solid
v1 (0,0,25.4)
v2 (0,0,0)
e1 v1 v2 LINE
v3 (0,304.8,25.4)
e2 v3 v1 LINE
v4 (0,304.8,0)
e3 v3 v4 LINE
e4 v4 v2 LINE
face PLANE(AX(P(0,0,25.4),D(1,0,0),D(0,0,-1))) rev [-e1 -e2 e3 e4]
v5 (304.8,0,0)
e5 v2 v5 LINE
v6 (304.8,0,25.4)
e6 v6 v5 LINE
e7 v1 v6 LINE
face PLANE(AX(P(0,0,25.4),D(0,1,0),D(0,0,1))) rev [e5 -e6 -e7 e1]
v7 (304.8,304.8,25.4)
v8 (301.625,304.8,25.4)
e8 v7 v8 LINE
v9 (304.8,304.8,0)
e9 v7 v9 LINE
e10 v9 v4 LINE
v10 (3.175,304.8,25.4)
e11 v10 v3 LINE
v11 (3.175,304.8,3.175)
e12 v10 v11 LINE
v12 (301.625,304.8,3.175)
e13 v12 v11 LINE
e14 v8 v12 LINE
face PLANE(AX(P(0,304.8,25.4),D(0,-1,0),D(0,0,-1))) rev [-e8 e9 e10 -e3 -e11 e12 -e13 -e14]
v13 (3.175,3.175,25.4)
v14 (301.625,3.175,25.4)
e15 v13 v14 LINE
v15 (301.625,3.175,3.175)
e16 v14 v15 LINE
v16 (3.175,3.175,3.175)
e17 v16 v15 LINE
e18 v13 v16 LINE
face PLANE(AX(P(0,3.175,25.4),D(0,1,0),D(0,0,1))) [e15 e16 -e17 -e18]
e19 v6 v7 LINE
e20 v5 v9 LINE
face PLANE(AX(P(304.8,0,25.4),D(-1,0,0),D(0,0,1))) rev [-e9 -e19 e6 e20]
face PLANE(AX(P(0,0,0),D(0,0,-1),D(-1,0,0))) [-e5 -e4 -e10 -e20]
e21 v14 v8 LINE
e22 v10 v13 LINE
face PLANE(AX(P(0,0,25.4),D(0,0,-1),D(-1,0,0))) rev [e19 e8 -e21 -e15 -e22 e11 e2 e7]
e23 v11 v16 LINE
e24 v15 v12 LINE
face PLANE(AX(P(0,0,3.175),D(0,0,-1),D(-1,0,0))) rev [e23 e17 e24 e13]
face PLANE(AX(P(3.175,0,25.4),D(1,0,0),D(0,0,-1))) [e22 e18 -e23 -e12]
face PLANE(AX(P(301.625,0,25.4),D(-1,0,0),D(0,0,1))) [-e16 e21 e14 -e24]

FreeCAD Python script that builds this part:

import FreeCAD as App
import Part
import Sketcher

V = App.Vector
Q = App.Units.Quantity


def faces_at(feature, points):
    """Names of the faces that lie closest to the given points."""
    faces = feature.Shape.Faces
    near = lambda p: min(range(len(faces)), key=lambda i: faces[i].distToShape(Part.Vertex(*p))[0])
    return sorted({f"Face{near(p) + 1}" for p in points})


def add_polygon(sketch, points):
    """Adds a closed chain of lines whose ends are joined by coincident constraints."""
    first, n = sketch.GeometryCount, len(points)
    for a, b in zip(points, points[1:] + points[:1]):
        sketch.addGeometry(Part.LineSegment(App.Vector(*a, 0), App.Vector(*b, 0)), False)
    for i in range(n):
        sketch.addConstraint(Sketcher.Constraint("Coincident", first + i, 2, first + (i + 1) % n, 1))

doc = App.newDocument("Part")
params = doc.addObject("Spreadsheet::Sheet", "Params")
for row, (alias, value) in enumerate([
    ("sketch1_width", "12 in"),
    ("pad1_length", "1 in"),
    ("thickness_wall", "0.125 in"),
], start=1):
    params.set(f"A{row}", alias)
    params.set(f"B{row}", "=" + value)
    params.setAlias(f"B{row}", alias)

body = doc.addObject("PartDesign::Body", "Body")

sketch1 = body.newObject("Sketcher::SketchObject", "Sketch")
sketch1.AttachmentSupport = (doc.getObject("XY_Plane"), [""])
sketch1.MapMode = "FlatFace"
add_polygon(sketch1, [(0, 305), (0, 0), (305, 0), (305, 305)])
sketch1.addConstraint([
    Sketcher.Constraint("Vertical", 0),
    Sketcher.Constraint("Horizontal", 1),
    Sketcher.Constraint("Vertical", 2),
    Sketcher.Constraint("Horizontal", 3),
    Sketcher.Constraint("Coincident", 0, 2, -1, 1),
    Sketcher.Constraint("Equal", 3, 0),
    Sketcher.Constraint("DistanceX", 1, 1, 1, 2, Q("12 in")),
])
sketch1.setExpression("Constraints[10]", "Params.sketch1_width")
pad1 = body.newObject("PartDesign::Pad", "Pad")
pad1.Profile = sketch1
pad1.setExpression("Length", "Params.pad1_length")
doc.recompute()

thickness = body.newObject("PartDesign::Thickness", "Thickness")
thickness.Base = (pad1, faces_at(pad1, [(152.4, 152.4, 25.4), (152.4, 304.8, 12.7)]))
thickness.setExpression("Value", "Params.thickness_wall")
thickness.Reversed = True
thickness.Join = "Intersection"

doc.recompute()
